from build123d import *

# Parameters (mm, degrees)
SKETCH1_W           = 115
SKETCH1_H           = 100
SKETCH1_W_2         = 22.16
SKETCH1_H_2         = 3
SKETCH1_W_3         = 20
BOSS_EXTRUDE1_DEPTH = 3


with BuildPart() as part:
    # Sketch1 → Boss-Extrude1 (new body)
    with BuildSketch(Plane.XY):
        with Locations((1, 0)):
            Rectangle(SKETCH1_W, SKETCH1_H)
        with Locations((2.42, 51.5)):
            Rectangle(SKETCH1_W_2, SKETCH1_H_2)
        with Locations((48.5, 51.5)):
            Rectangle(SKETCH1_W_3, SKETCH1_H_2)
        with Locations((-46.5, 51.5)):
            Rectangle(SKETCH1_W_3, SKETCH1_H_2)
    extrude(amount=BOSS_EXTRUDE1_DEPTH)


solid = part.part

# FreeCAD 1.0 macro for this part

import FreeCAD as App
import Part
import Sketcher
from FreeCAD import Vector
Q = App.Units.Quantity


def add_polygon(sketch, points):
    """Adds a closed chain of lines whose ends are joined by coincident constraints."""
    first, n = sketch.GeometryCount, len(points)
    for a, b in zip(points, points[1:] + points[:1]):
        sketch.addGeometry(Part.LineSegment(App.Vector(*a, 0), App.Vector(*b, 0)), False)
    for i in range(n):
        sketch.addConstraint(Sketcher.Constraint("Coincident", first + i, 2, first + (i + 1) % n, 1))

doc = App.newDocument("Part")
body = doc.addObject("PartDesign::Body", "Body")

# Sketch on XY plane
sketch1 = body.newObject("Sketcher::SketchObject", "Sketch")
sketch1.AttachmentSupport = (doc.getObject("XY_Plane"), [""])
sketch1.MapMode = "FlatFace"
add_polygon(sketch1, [(-56.5, -50), (58.5, -50), (58.5, 53), (38.5, 53), (38.5, 50), (13.5, 50), (13.5, 53), (-8.7, 53), (-8.7, 50), (-36.5, 50), (-36.5, 53), (-56.5, 53)])  # lines 0-11
sketch1.addConstraint([
    Sketcher.Constraint("Horizontal", 0),
    Sketcher.Constraint("Vertical", 1),
    Sketcher.Constraint("Horizontal", 2),
    Sketcher.Constraint("Vertical", 3),
    Sketcher.Constraint("Horizontal", 4),
    Sketcher.Constraint("Vertical", 5),
    Sketcher.Constraint("Horizontal", 6),
    Sketcher.Constraint("Vertical", 7),
    Sketcher.Constraint("Horizontal", 8),
    Sketcher.Constraint("Vertical", 9),
    Sketcher.Constraint("Horizontal", 10),
    Sketcher.Constraint("Vertical", 11),
    Sketcher.Constraint("Horizontal", 2, 2, 5, 2),
    Sketcher.Constraint("Horizontal", 4, 2, 7, 2),
    Sketcher.Constraint("Horizontal", 6, 2, 9, 2),
    Sketcher.Constraint("Equal", 2, 10),
    Sketcher.Constraint("DistanceX", 0, 1, 0, 2, Q("115 mm")),
    Sketcher.Constraint("DistanceX", 2, 2, 2, 1, Q("20 mm")),
    Sketcher.Constraint("DistanceX", 4, 2, 4, 1, Q("25 mm")),
    Sketcher.Constraint("DistanceY", 1, 1, 1, 2, Q("103 mm")),
    Sketcher.Constraint("DistanceY", 3, 2, 3, 1, Q("3 mm")),
    Sketcher.Constraint("DistanceY", 0, 2, -1, 1, Q("50 mm")),
    Sketcher.Constraint("DistanceX", 6, 2, 6, 1, Q("22.16 mm")),
    Sketcher.Constraint("DistanceX", -1, 1, 0, 2, Q("58.5 mm")),
])
pad1 = body.newObject("PartDesign::Pad", "Pad")
pad1.Profile = sketch1
pad1.Length = 3

doc.recompute()
